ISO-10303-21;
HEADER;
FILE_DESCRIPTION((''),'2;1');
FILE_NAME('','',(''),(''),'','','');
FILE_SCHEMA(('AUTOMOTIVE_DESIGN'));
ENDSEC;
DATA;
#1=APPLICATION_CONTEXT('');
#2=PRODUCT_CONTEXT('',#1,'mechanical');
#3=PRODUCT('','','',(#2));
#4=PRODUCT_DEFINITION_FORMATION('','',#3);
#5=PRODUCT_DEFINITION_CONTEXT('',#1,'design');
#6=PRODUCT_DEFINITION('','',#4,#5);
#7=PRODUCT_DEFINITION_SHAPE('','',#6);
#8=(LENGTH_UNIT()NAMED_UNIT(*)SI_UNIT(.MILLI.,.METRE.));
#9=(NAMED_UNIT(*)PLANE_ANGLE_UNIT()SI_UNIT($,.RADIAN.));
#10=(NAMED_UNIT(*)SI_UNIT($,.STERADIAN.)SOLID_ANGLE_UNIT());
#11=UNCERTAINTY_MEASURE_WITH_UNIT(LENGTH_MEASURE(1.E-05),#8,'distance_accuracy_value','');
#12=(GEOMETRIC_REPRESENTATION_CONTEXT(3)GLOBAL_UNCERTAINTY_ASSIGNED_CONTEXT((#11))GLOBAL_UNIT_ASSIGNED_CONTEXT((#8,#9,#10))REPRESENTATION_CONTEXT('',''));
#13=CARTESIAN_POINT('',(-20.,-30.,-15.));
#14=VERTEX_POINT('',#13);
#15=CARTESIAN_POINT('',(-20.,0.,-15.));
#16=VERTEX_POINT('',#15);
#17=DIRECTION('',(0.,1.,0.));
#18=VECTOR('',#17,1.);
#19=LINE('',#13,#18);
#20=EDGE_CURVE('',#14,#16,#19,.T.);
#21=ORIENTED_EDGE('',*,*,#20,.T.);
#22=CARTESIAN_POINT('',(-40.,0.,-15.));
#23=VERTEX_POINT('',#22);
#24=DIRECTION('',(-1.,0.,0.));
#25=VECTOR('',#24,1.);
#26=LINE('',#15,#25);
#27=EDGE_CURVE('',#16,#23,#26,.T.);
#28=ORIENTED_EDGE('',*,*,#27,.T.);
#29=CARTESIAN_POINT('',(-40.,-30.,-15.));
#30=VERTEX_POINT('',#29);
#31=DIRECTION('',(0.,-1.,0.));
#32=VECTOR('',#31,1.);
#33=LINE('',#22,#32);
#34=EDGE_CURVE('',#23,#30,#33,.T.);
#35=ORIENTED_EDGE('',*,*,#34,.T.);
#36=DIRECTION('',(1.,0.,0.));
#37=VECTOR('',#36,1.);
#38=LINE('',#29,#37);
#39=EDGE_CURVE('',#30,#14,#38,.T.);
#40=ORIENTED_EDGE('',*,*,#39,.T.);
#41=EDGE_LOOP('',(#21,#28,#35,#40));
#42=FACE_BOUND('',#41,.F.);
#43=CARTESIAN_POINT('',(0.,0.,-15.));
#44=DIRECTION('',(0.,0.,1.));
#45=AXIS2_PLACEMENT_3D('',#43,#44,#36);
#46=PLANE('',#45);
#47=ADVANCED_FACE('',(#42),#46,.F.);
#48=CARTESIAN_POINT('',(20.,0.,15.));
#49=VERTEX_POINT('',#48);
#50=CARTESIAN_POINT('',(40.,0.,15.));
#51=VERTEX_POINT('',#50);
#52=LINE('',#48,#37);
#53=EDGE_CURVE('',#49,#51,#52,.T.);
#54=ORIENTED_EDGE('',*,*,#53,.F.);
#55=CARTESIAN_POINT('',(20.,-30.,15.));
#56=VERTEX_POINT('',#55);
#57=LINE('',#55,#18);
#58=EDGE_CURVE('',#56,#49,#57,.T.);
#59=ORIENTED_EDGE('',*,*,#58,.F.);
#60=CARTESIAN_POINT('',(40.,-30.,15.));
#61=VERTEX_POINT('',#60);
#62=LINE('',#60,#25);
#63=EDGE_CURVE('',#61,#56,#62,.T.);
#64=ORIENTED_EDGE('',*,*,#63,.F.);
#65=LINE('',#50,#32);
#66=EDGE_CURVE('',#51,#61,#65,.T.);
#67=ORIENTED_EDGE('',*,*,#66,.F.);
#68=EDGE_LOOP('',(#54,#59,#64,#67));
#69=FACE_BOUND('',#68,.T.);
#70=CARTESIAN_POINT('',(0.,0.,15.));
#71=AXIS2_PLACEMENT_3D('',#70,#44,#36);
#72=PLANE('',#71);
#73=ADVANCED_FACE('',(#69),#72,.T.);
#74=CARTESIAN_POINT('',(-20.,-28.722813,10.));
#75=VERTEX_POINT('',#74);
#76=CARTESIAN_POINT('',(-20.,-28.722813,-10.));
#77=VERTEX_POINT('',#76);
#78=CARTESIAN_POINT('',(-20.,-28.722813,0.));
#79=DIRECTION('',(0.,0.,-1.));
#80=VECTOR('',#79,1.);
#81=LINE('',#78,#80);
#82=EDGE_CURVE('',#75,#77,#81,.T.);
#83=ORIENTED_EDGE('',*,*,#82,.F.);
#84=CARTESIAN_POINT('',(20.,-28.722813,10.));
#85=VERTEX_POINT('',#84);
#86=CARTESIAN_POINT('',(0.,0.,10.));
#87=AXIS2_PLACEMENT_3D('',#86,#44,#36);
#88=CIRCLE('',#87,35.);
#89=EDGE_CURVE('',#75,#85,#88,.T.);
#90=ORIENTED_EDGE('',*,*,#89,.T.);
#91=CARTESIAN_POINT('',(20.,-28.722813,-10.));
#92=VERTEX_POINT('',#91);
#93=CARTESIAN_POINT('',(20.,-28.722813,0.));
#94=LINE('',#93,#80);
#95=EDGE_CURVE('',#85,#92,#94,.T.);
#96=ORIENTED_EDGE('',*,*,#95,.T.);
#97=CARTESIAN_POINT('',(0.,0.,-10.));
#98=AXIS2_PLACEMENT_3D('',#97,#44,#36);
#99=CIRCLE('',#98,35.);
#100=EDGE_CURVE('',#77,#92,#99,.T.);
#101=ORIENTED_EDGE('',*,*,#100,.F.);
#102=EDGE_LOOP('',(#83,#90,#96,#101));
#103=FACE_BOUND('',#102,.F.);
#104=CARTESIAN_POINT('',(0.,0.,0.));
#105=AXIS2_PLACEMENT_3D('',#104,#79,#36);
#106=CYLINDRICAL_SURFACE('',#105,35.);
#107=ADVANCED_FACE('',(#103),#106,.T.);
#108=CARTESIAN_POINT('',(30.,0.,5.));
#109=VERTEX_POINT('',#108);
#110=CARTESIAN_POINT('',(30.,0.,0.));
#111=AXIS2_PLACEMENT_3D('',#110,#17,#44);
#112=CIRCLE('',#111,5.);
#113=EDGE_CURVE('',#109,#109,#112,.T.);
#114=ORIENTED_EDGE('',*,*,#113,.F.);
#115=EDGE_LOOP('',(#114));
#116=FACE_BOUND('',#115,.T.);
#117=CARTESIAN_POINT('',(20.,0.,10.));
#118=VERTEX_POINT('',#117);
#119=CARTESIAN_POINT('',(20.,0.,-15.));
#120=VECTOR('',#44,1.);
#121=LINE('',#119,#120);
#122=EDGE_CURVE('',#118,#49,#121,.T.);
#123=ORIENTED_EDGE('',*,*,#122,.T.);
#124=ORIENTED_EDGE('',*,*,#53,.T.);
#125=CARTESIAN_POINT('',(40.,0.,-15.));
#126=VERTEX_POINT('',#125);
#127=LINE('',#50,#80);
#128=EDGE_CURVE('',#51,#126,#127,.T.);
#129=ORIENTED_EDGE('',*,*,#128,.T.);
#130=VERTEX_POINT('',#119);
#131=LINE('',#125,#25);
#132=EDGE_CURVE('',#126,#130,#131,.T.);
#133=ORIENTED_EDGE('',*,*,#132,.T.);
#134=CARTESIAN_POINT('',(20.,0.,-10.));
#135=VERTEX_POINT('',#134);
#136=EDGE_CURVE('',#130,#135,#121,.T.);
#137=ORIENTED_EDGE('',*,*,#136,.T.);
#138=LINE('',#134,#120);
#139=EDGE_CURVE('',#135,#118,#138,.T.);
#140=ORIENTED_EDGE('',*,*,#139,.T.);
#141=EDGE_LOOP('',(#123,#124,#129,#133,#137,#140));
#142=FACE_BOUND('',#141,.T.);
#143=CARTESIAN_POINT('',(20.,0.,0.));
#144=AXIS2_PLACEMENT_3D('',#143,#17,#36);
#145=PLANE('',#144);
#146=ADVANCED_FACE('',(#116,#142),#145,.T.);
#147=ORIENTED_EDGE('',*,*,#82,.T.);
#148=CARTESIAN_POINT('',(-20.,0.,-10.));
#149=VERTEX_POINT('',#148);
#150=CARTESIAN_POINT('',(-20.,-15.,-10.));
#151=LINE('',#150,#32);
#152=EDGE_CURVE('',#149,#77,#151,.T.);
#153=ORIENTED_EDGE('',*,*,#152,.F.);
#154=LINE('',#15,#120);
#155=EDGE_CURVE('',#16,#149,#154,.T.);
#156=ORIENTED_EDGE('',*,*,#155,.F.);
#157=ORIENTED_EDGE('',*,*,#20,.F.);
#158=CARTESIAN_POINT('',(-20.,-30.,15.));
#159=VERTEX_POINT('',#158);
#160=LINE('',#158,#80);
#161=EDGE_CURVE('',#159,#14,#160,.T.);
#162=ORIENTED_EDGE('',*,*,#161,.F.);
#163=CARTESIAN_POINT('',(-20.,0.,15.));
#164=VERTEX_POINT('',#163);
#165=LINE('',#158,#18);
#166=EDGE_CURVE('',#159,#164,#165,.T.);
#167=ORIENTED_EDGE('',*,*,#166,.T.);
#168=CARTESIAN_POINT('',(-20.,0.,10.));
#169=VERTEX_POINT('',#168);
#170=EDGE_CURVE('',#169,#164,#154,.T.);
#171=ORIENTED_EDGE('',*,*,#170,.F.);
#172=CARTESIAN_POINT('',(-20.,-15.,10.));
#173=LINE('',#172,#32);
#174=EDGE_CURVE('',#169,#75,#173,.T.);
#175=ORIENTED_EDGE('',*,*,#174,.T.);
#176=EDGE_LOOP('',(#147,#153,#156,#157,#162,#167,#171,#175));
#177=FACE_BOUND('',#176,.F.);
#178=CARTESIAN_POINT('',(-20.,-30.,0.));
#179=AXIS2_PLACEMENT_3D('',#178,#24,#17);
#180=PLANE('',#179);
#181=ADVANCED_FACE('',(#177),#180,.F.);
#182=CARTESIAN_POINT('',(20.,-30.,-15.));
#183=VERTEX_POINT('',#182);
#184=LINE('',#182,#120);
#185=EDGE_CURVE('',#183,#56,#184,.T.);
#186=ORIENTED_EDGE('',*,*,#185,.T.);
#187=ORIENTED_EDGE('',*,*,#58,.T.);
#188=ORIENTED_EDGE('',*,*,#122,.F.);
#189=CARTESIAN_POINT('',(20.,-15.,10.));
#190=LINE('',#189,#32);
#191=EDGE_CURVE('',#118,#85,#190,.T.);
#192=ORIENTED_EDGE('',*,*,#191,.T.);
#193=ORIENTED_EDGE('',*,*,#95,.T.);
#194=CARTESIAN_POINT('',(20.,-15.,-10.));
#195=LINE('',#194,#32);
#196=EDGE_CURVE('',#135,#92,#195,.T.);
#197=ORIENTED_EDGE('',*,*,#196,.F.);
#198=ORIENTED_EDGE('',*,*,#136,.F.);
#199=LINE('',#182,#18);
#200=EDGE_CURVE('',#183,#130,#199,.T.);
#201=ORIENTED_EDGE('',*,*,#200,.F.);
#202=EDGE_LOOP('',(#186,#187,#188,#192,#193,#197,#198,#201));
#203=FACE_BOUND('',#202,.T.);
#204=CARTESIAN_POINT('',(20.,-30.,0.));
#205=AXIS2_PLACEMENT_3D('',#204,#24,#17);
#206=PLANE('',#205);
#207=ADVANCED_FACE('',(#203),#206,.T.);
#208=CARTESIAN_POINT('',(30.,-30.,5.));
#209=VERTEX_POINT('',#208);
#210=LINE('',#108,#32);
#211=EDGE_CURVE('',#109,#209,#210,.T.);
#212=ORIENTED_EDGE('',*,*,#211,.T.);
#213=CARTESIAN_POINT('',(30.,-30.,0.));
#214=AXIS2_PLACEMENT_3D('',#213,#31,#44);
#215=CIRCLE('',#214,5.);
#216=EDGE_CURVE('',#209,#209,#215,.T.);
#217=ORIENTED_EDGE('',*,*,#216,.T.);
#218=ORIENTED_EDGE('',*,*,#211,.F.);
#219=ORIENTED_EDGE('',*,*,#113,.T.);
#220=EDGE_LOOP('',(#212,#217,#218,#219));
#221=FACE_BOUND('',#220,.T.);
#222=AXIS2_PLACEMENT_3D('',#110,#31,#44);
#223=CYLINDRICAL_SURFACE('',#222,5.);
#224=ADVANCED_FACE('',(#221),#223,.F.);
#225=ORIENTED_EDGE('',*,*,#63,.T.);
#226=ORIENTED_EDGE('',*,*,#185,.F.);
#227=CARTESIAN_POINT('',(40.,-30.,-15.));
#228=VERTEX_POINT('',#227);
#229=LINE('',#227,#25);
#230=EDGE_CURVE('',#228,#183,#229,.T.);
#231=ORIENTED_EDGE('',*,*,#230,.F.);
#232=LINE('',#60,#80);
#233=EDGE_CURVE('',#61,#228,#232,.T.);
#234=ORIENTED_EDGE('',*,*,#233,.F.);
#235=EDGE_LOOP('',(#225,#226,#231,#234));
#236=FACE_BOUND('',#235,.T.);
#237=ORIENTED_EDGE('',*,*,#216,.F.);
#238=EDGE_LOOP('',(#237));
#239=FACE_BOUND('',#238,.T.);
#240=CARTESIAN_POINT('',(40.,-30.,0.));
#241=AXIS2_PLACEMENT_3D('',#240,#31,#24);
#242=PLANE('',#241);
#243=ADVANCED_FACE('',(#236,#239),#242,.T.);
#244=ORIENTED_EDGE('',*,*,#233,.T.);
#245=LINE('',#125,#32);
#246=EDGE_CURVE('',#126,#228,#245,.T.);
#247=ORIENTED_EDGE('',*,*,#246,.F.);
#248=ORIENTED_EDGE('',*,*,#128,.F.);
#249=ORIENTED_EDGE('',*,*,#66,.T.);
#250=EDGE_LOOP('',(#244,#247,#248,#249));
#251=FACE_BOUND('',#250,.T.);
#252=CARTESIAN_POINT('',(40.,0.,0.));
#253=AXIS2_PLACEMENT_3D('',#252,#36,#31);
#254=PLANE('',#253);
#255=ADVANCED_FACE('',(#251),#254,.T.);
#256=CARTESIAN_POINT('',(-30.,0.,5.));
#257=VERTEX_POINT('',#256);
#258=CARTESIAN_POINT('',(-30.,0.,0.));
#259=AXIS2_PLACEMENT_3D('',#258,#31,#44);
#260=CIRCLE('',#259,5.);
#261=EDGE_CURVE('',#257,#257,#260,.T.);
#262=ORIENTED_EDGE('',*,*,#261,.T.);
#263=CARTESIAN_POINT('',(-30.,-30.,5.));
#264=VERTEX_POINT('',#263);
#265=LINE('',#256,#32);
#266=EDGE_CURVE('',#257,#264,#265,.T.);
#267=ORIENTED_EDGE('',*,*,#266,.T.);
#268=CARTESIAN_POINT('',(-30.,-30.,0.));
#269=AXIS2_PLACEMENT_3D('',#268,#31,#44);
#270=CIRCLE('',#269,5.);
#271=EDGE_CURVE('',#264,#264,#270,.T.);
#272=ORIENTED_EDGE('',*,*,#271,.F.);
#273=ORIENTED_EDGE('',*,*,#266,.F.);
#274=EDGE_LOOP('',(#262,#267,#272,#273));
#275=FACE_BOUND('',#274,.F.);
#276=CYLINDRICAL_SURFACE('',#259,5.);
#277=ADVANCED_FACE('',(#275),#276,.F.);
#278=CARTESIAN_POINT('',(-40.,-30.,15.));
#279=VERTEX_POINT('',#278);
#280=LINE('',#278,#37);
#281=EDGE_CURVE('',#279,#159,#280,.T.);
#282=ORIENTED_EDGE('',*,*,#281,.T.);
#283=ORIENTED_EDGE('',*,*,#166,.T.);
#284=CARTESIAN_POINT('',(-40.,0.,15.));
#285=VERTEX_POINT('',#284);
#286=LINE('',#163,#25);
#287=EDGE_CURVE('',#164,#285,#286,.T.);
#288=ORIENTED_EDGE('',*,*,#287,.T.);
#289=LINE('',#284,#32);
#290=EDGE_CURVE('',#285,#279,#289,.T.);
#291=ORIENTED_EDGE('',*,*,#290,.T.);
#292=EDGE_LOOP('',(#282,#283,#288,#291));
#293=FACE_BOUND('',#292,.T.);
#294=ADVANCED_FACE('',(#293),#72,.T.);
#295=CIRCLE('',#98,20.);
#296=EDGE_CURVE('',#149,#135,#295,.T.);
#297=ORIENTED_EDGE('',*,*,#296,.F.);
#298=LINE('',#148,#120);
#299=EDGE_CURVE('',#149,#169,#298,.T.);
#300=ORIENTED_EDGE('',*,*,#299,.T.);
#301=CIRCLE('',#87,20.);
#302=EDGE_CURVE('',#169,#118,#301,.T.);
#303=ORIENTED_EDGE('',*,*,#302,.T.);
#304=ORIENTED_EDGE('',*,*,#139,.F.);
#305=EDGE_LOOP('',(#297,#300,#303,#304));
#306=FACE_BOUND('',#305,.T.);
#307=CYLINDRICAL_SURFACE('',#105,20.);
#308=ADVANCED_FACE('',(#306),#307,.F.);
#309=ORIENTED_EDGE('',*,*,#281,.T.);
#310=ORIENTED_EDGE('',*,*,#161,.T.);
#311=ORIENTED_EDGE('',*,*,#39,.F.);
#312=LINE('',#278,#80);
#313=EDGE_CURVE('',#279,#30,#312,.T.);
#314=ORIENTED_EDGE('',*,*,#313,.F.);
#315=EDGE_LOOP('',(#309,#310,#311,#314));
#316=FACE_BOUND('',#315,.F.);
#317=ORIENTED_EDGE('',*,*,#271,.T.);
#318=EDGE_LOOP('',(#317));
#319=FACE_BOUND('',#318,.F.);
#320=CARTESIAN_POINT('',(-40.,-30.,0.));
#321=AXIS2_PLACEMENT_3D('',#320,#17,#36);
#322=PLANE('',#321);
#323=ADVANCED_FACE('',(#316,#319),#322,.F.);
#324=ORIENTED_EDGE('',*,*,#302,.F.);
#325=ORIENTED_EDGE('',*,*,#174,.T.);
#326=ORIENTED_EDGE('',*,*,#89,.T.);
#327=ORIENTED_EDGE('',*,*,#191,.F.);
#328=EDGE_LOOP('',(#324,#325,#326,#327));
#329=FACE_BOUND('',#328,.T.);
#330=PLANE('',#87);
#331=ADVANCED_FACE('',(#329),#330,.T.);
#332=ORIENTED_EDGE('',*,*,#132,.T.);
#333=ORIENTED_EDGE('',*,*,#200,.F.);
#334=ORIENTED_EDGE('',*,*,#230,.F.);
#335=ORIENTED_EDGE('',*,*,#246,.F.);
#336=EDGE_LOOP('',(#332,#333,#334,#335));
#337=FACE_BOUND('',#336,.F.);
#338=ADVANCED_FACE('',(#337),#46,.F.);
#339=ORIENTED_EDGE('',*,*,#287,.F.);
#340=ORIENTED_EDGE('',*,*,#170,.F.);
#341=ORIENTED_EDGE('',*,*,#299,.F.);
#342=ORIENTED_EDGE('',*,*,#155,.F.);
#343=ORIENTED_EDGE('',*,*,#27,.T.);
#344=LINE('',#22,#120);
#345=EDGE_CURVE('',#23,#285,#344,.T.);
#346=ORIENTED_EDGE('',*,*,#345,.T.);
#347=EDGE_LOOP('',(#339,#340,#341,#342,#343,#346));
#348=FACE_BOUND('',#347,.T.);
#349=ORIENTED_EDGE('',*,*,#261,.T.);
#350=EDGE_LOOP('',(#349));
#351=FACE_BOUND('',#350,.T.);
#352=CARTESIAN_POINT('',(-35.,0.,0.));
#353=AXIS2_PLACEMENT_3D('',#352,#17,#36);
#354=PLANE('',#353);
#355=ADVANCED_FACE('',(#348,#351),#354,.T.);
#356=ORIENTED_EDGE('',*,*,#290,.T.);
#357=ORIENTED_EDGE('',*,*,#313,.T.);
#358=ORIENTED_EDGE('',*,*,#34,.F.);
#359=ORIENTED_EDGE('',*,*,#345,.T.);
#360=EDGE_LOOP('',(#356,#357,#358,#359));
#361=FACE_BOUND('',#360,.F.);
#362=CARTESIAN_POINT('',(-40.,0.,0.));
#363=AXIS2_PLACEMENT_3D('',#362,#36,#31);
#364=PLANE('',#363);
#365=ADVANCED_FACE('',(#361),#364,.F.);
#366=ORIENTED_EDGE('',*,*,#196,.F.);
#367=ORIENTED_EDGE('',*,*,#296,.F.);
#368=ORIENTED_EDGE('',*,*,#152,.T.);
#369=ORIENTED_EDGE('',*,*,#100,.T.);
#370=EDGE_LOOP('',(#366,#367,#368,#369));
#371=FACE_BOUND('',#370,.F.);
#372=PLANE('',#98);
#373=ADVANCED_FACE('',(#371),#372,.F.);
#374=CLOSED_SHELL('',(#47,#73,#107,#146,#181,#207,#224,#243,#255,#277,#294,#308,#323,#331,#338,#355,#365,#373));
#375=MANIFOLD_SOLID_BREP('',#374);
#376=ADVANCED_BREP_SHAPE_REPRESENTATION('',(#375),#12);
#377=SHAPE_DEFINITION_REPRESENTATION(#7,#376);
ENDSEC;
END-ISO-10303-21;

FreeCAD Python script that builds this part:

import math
import FreeCAD as App
import Part
import Sketcher
from FreeCAD import Vector
Q = App.Units.Quantity

doc = App.newDocument("Part")
body = doc.addObject("PartDesign::Body", "Body")

# Sketch on XY plane
sketch1 = body.newObject("Sketcher::SketchObject", "Sketch")
sketch1.AttachmentSupport = (doc.getObject("XY_Plane"), [""])
sketch1.MapMode = "FlatFace"
sketch1.addGeometry(Part.LineSegment(Vector(35, 0, 0), Vector(20, 0, 0)), False)
sketch1.addGeometry(Part.ArcOfCircle(Part.Circle(Vector(0, 0, 0), Vector(0, 0, 1), 20), math.radians(180), math.radians(360)), False)
sketch1.addGeometry(Part.LineSegment(Vector(-20, 0, 0), Vector(-35, 0, 0)), False)
sketch1.addGeometry(Part.ArcOfCircle(Part.Circle(Vector(0, 0, 0), Vector(0, 0, 1), 35), math.radians(180), math.radians(360)), False)
sketch1.addConstraint(Sketcher.Constraint("Coincident", 0, 2, 1, 2))
sketch1.addConstraint(Sketcher.Constraint("Coincident", 1, 1, 2, 1))
sketch1.addConstraint(Sketcher.Constraint("Coincident", 2, 2, 3, 1))
sketch1.addConstraint(Sketcher.Constraint("Coincident", 3, 2, 0, 1))
sketch1.addConstraint(Sketcher.Constraint("Horizontal", 0))
sketch1.addConstraint(Sketcher.Constraint("Horizontal", 2))
sketch1.addConstraint(Sketcher.Constraint("Coincident", 1, 3, -1, 1))
sketch1.addConstraint(Sketcher.Constraint("Coincident", 3, 3, -1, 1))
sketch1.addConstraint(Sketcher.Constraint("PointOnObject", 0, 2, -1))
sketch1.addConstraint(Sketcher.Constraint("PointOnObject", 1, 1, -1))
sketch1.addConstraint(Sketcher.Constraint("Radius", 3, Q("35 mm")))
sketch1.addConstraint(Sketcher.Constraint("Radius", 1, Q("20 mm")))
pad1 = body.newObject("PartDesign::Pad", "Pad")
pad1.Profile = sketch1
pad1.Length = 20
pad1.Midplane = True

# Sketch on XY plane
sketch2 = body.newObject("Sketcher::SketchObject", "Sketch001")
sketch2.AttachmentSupport = (doc.getObject("XY_Plane"), [""])
sketch2.MapMode = "FlatFace"
sketch2.addGeometry(Part.LineSegment(Vector(-20, -30, 0), Vector(-20, 0, 0)), False)
sketch2.addGeometry(Part.LineSegment(Vector(-20, 0, 0), Vector(-40, 0, 0)), False)
sketch2.addGeometry(Part.LineSegment(Vector(-40, 0, 0), Vector(-40, -30, 0)), False)
sketch2.addGeometry(Part.LineSegment(Vector(-40, -30, 0), Vector(-20, -30, 0)), False)
sketch2.addGeometry(Part.LineSegment(Vector(40, 0, 0), Vector(20, 0, 0)), False)
sketch2.addGeometry(Part.LineSegment(Vector(20, 0, 0), Vector(20, -30, 0)), False)
sketch2.addGeometry(Part.LineSegment(Vector(20, -30, 0), Vector(40, -30, 0)), False)
sketch2.addGeometry(Part.LineSegment(Vector(40, -30, 0), Vector(40, 0, 0)), False)
sketch2.addConstraint(Sketcher.Constraint("Coincident", 0, 2, 1, 1))
sketch2.addConstraint(Sketcher.Constraint("Coincident", 1, 2, 2, 1))
sketch2.addConstraint(Sketcher.Constraint("Coincident", 2, 2, 3, 1))
sketch2.addConstraint(Sketcher.Constraint("Coincident", 3, 2, 0, 1))
sketch2.addConstraint(Sketcher.Constraint("Coincident", 4, 2, 5, 1))
sketch2.addConstraint(Sketcher.Constraint("Coincident", 5, 2, 6, 1))
sketch2.addConstraint(Sketcher.Constraint("Coincident", 6, 2, 7, 1))
sketch2.addConstraint(Sketcher.Constraint("Coincident", 7, 2, 4, 1))
sketch2.addConstraint(Sketcher.Constraint("Vertical", 0))
sketch2.addConstraint(Sketcher.Constraint("Horizontal", 1))
sketch2.addConstraint(Sketcher.Constraint("Vertical", 2))
sketch2.addConstraint(Sketcher.Constraint("Horizontal", 3))
sketch2.addConstraint(Sketcher.Constraint("Horizontal", 4))
sketch2.addConstraint(Sketcher.Constraint("Vertical", 5))
sketch2.addConstraint(Sketcher.Constraint("Horizontal", 6))
sketch2.addConstraint(Sketcher.Constraint("Vertical", 7))
sketch2.addConstraint(Sketcher.Constraint("Symmetric", 0, 2, 4, 2, -1, 1))
sketch2.addConstraint(Sketcher.Constraint("Symmetric", 2, 2, 6, 2, -2))
sketch2.addConstraint(Sketcher.Constraint("PointOnObject", 0, 2, -1))
sketch2.addConstraint(Sketcher.Constraint("DistanceX", 1, 2, 1, 1, Q("20 mm")))
sketch2.addConstraint(Sketcher.Constraint("DistanceY", 0, 1, 0, 2, Q("30 mm")))
sketch2.addConstraint(Sketcher.Constraint("DistanceX", 0, 2, -1, 1, Q("20 mm")))
pad2 = body.newObject("PartDesign::Pad", "Pad001")
pad2.Profile = sketch2
pad2.Length = 30
pad2.Midplane = True

# Sketch on XZ plane
sketch3 = body.newObject("Sketcher::SketchObject", "Sketch002")
sketch3.AttachmentSupport = (doc.getObject("XZ_Plane"), [""])
sketch3.MapMode = "FlatFace"
sketch3.addGeometry(Part.Circle(Vector(-30, 0, 0), Vector(0, 0, 1), 5), False)
sketch3.addConstraint(Sketcher.Constraint("PointOnObject", 0, 3, -1))
sketch3.addConstraint(Sketcher.Constraint("Diameter", 0, Q("10 mm")))
sketch3.addConstraint(Sketcher.Constraint("DistanceX", 0, 3, -1, 1, Q("30 mm")))
doc.recompute()
hole = body.newObject("PartDesign::Hole", "Hole")
hole.Profile = sketch3
hole.ThreadType = "None"
hole.Diameter = 10
hole.DepthType = "ThroughAll"
hole.Reversed = True
doc.recompute()

mirrored = body.newObject("PartDesign::Mirrored", "Mirrored")
mirrored.Originals = [hole]
mirrored.MirrorPlane = (doc.getObject("YZ_Plane"), [""])
body.Tip = mirrored

doc.recompute()
